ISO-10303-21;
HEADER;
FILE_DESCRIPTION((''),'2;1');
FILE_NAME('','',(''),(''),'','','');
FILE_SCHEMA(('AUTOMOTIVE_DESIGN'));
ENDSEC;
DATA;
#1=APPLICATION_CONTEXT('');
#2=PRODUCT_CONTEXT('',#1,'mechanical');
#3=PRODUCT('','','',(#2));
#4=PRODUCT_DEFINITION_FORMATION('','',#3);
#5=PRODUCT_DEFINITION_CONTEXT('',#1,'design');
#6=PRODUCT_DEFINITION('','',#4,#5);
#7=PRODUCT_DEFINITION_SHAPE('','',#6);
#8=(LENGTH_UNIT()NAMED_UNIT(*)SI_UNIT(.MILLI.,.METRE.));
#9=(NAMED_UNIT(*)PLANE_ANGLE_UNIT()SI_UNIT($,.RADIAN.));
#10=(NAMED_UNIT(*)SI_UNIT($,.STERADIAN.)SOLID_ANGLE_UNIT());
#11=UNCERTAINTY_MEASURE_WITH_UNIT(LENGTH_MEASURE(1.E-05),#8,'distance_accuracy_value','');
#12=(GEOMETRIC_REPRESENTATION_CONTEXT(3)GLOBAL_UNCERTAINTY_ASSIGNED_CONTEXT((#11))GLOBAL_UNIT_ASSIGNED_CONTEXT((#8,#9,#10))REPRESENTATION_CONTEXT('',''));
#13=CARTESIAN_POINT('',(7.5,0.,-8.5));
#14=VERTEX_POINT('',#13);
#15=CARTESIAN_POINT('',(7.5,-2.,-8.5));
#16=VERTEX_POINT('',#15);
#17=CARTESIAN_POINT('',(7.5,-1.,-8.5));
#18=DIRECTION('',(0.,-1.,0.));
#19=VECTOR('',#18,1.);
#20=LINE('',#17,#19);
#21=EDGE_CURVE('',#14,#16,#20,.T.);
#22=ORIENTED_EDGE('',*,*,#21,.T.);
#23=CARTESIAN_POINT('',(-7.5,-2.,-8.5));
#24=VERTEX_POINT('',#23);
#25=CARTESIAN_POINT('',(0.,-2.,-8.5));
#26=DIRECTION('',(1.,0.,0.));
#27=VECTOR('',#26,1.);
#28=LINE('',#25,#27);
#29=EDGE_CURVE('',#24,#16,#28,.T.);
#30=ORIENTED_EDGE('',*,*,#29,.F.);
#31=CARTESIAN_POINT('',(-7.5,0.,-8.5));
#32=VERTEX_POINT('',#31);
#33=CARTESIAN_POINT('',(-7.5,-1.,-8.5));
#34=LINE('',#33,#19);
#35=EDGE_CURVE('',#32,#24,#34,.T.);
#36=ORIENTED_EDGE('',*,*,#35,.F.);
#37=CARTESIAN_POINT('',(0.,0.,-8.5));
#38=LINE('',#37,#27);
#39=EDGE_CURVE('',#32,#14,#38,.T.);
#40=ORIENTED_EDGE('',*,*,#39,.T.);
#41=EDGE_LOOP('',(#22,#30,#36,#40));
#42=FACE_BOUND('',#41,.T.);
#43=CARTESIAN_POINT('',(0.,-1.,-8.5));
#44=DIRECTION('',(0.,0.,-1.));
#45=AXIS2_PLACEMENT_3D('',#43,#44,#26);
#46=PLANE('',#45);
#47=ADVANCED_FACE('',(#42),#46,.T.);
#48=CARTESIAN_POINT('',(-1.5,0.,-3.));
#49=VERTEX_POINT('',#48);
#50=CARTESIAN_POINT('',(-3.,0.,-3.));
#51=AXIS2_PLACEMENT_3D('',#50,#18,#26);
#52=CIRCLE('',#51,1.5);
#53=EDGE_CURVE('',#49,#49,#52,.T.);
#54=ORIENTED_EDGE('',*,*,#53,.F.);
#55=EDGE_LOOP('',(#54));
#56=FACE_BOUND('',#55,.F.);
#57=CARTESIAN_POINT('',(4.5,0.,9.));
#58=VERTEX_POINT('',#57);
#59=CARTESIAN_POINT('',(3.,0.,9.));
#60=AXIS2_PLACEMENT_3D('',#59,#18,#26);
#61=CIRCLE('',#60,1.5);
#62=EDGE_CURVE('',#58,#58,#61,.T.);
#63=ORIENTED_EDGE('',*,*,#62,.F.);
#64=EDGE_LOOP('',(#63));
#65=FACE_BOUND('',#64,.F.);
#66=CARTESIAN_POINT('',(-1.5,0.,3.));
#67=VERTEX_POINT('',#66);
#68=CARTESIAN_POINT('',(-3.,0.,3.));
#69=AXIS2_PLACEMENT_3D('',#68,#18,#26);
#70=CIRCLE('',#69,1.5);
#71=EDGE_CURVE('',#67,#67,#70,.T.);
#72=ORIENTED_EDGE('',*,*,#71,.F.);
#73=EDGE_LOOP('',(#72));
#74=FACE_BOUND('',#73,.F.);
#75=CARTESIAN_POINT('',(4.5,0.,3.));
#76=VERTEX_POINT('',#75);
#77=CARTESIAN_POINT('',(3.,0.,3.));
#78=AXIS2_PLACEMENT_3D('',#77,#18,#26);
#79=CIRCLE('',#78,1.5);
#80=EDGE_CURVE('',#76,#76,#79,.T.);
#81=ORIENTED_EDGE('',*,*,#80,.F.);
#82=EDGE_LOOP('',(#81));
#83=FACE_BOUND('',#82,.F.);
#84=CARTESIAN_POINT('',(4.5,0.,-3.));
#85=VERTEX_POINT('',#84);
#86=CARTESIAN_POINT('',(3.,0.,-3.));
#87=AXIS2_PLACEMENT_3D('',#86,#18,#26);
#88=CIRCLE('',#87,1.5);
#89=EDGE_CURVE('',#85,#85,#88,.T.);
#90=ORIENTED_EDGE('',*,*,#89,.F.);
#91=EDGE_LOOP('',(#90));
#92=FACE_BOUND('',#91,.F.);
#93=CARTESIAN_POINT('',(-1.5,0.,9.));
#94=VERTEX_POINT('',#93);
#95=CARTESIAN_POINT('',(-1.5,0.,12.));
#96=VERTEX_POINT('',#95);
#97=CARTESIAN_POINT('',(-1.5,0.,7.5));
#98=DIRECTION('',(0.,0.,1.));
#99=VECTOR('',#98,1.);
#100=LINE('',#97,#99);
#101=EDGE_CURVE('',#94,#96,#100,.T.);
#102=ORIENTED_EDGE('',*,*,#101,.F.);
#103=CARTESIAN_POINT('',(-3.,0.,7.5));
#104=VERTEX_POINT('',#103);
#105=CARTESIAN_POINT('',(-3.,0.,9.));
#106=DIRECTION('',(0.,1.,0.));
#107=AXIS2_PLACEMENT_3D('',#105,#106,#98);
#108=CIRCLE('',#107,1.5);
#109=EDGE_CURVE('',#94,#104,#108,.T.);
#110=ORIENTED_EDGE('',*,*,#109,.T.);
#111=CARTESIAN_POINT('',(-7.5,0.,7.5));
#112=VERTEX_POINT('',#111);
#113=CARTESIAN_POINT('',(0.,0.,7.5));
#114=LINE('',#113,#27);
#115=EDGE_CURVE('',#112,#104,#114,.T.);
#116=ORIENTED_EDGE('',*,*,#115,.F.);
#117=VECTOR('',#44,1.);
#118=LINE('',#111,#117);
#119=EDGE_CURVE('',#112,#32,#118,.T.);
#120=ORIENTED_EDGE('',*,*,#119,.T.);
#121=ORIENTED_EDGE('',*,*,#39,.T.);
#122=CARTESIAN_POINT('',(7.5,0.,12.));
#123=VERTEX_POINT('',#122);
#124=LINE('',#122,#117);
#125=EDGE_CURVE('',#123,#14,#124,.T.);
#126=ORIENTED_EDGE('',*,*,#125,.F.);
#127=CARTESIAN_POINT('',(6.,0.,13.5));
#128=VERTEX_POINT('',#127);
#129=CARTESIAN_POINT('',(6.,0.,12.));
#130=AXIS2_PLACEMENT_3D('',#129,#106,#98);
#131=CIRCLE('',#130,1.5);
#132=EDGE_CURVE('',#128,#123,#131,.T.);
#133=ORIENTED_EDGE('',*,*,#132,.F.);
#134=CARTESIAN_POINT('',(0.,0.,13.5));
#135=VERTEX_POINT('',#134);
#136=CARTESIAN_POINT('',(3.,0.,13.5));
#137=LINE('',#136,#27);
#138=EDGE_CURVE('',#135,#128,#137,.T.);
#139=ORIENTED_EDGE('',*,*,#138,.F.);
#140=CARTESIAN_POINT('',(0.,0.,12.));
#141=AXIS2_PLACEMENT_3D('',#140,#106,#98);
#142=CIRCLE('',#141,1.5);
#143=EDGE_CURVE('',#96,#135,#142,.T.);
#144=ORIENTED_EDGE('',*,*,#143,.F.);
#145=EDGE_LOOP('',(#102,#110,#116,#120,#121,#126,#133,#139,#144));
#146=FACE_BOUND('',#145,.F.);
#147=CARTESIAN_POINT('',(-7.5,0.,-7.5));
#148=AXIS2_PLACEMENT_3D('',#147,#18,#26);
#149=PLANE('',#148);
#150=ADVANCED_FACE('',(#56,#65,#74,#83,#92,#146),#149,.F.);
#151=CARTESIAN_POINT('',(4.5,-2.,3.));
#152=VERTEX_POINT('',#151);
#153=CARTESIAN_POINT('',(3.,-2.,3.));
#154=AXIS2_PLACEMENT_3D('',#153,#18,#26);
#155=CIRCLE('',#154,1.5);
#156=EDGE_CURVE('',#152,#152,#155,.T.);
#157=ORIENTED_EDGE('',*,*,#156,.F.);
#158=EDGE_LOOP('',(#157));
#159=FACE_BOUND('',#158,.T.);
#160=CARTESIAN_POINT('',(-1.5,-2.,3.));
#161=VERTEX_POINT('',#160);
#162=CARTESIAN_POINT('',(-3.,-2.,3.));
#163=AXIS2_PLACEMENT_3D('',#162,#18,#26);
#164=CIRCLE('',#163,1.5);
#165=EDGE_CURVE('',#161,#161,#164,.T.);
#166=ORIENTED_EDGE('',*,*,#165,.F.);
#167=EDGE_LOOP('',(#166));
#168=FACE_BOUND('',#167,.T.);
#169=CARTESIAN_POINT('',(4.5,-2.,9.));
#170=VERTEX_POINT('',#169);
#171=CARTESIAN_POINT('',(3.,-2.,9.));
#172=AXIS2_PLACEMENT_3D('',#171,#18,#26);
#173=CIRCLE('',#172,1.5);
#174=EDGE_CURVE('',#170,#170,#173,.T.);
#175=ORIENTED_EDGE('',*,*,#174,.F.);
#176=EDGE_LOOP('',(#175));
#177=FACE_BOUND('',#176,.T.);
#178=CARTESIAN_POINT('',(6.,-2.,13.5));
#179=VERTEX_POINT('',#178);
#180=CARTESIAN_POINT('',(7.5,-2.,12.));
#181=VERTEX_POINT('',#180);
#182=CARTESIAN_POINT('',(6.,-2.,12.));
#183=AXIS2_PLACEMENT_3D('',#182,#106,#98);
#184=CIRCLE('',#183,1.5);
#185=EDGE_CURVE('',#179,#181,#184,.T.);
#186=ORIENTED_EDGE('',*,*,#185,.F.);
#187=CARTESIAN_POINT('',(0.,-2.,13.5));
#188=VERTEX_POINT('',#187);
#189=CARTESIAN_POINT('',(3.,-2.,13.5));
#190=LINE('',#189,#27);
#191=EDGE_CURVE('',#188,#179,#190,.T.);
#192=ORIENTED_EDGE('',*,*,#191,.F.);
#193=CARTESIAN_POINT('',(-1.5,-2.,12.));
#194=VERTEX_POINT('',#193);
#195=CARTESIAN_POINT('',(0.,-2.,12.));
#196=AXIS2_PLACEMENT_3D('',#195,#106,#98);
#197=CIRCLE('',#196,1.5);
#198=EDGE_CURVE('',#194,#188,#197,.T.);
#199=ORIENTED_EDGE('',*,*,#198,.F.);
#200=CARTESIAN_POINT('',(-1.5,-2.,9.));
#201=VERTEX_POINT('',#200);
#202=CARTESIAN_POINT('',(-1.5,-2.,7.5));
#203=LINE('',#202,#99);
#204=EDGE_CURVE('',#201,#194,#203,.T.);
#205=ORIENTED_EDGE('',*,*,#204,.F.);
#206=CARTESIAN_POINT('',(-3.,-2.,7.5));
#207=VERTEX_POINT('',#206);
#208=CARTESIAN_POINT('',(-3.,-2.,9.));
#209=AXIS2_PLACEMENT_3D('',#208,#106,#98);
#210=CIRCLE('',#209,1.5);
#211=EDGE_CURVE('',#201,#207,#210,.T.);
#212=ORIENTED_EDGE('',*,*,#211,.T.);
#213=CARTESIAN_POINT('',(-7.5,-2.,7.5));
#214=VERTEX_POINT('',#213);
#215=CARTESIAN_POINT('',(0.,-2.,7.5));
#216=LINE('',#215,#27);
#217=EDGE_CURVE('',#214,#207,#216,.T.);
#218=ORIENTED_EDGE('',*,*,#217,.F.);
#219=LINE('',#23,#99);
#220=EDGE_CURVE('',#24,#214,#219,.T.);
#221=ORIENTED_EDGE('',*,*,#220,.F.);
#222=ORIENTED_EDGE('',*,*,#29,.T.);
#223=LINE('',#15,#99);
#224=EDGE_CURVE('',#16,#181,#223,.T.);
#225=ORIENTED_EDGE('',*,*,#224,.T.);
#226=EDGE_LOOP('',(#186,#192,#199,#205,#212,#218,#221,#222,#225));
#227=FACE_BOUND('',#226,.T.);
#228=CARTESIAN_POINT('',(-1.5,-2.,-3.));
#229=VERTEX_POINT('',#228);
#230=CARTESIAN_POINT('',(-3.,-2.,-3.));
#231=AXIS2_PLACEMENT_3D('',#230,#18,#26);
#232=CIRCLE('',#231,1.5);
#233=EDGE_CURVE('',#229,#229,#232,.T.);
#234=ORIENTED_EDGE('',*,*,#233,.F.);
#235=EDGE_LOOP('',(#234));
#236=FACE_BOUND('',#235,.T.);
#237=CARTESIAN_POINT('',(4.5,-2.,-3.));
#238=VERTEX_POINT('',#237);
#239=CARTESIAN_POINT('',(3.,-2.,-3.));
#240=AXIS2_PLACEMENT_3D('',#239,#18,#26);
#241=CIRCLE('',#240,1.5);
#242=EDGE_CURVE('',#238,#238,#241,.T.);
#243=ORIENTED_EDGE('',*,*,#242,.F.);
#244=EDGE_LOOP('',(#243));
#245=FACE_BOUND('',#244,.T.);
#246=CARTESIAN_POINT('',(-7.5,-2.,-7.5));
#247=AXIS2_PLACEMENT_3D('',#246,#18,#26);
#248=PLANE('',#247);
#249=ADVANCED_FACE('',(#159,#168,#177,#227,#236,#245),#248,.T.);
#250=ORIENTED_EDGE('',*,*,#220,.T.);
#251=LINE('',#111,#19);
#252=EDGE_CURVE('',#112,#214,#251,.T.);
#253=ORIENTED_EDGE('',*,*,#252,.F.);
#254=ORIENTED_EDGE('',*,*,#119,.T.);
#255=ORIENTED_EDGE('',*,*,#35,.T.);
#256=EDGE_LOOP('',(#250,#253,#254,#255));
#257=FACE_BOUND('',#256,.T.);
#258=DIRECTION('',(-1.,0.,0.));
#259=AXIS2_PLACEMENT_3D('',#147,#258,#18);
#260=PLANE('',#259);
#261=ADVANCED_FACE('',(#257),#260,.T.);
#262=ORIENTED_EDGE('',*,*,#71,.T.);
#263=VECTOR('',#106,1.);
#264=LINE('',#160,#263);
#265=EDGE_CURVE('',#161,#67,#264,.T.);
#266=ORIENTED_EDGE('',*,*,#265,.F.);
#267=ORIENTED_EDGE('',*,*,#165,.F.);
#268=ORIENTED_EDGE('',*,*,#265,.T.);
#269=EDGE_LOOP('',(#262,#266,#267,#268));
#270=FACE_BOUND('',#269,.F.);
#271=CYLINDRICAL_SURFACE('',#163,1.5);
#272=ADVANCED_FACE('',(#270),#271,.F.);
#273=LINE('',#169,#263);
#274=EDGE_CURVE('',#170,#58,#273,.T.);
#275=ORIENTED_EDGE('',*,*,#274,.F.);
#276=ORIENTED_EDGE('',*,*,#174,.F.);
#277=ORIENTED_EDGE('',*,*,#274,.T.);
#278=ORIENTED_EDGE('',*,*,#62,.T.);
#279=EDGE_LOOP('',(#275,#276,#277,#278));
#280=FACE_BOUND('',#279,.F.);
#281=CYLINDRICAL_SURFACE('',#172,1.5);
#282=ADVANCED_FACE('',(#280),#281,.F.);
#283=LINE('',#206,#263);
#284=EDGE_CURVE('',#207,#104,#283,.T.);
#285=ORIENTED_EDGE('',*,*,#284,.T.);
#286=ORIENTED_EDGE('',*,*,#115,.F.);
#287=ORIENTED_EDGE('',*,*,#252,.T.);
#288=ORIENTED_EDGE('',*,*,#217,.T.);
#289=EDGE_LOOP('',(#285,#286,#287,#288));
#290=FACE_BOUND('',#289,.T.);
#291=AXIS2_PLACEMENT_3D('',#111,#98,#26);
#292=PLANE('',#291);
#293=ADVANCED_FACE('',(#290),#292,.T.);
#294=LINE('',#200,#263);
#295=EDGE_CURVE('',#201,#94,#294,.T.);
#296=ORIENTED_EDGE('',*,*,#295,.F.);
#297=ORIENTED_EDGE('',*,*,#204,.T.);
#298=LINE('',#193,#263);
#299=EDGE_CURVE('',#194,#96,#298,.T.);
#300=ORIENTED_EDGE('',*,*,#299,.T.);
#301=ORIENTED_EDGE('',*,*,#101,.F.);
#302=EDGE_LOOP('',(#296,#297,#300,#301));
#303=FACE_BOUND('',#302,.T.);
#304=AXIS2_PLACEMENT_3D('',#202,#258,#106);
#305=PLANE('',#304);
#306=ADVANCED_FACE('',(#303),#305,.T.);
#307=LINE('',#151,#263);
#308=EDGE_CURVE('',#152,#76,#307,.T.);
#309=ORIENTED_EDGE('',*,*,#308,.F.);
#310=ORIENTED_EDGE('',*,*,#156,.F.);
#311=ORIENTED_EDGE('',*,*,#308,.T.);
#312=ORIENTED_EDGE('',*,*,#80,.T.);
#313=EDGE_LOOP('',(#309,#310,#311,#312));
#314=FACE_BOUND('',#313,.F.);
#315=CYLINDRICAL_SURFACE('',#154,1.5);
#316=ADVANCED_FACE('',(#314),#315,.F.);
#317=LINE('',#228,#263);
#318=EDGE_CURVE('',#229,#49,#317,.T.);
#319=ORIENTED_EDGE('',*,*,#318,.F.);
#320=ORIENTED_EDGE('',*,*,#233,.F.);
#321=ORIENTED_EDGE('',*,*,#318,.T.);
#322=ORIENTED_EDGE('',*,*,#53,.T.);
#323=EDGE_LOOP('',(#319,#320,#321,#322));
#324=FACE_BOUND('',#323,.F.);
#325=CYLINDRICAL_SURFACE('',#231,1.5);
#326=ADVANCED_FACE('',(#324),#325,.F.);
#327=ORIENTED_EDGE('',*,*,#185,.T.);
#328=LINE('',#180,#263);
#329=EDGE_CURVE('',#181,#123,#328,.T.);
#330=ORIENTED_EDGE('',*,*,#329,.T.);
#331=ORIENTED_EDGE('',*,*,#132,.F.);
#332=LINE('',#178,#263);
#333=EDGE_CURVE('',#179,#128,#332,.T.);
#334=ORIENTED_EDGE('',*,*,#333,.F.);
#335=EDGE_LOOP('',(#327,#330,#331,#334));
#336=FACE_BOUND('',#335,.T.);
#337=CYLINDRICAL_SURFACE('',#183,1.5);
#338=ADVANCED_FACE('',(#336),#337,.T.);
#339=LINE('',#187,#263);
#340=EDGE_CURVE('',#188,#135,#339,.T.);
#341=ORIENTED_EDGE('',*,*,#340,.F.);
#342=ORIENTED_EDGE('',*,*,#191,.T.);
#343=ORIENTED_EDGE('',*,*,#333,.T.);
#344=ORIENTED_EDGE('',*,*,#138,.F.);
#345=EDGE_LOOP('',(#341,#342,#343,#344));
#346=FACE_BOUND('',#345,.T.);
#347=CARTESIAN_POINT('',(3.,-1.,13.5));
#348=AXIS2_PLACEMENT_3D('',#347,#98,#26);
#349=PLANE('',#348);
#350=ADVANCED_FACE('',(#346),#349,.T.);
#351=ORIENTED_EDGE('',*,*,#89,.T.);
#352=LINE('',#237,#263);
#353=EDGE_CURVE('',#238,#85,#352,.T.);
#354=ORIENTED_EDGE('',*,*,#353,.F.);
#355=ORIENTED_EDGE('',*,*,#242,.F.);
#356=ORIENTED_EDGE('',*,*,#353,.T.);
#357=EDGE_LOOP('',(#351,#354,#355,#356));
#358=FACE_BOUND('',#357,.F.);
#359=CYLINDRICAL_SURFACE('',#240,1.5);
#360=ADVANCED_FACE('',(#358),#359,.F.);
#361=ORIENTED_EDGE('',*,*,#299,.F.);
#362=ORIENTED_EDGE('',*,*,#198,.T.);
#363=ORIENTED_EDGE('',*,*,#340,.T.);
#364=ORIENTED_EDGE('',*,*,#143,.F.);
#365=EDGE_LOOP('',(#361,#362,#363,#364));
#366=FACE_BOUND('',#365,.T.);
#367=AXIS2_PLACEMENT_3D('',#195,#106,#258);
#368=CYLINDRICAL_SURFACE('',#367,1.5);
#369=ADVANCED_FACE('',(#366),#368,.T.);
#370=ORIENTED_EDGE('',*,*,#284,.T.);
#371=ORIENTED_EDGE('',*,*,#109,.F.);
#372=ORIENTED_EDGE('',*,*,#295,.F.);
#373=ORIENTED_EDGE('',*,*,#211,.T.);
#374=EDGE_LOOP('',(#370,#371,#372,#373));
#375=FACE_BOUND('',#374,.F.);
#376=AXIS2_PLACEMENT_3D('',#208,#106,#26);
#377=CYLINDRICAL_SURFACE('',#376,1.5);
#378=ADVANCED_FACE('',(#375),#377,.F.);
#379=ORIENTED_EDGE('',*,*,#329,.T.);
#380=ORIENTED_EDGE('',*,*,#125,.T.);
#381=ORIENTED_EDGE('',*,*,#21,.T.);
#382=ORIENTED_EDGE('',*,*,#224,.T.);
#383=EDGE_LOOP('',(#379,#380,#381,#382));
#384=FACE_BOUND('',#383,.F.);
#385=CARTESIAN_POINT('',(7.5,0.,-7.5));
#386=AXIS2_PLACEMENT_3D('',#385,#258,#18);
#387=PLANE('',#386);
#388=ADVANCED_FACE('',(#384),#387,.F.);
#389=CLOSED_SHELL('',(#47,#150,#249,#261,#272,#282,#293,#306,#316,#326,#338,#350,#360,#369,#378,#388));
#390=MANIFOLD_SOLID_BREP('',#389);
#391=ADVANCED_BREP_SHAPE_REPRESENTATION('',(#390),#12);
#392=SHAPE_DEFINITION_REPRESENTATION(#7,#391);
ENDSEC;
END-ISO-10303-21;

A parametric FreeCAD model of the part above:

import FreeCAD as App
import Part
import Sketcher

V = App.Vector


def edges_at(feature, points):
    """Names of the edges that pass closest to the given points."""
    edges = feature.Shape.Edges
    near = lambda p: min(range(len(edges)), key=lambda i: edges[i].distToShape(Part.Vertex(*p))[0])
    return sorted({f"Edge{near(p) + 1}" for p in points})


def add_polygon(sketch, points):
    """Adds a closed chain of lines whose ends are joined by coincident constraints."""
    first, n = sketch.GeometryCount, len(points)
    for a, b in zip(points, points[1:] + points[:1]):
        sketch.addGeometry(Part.LineSegment(App.Vector(*a, 0), App.Vector(*b, 0)), False)
    for i in range(n):
        sketch.addConstraint(Sketcher.Constraint("Coincident", first + i, 2, first + (i + 1) % n, 1))

doc = App.newDocument("Part")
body = doc.addObject("PartDesign::Body", "Body")

sketch1 = doc.addObject("Sketcher::SketchObject", "Sketch")
body.addObject(sketch1)
sketch1.AttachmentSupport = (doc.XZ_Plane, [""])
sketch1.MapMode = "FlatFace"
add_polygon(sketch1, [(-8, 8), (-8, -8), (8, -8), (8, 8)])
sketch1.addConstraint([
    Sketcher.Constraint("Vertical", 0),
    Sketcher.Constraint("Horizontal", 1),
    Sketcher.Constraint("Vertical", 2),
    Sketcher.Constraint("Horizontal", 3),
    Sketcher.Constraint("Symmetric", 0, 2, 2, 2, -1, 1),
    Sketcher.Constraint("Equal", 3, 0),
    Sketcher.Constraint("DistanceX", 1, 1, 1, 2, 15.0),
])
pad1 = doc.addObject("PartDesign::Pad", "Pad")
body.addObject(pad1)
pad1.Profile = sketch1
pad1.Length = 2

sketch2 = doc.addObject("Sketcher::SketchObject", "Sketch001")
body.addObject(sketch2)
sketch2.AttachmentSupport = (doc.XZ_Plane, [""])
sketch2.MapMode = "FlatFace"
sketch2.AttachmentOffset = App.Placement(V(0, 0, 2), App.Rotation())
sketch2.addGeometry([
    Part.Circle(V(3, 3, 0), V(0, 0, 1), 1.5),
    Part.Circle(V(-3, 3, 0), V(0, 0, 1), 1.5),
    Part.Circle(V(-3, -3, 0), V(0, 0, 1), 1.5),
    Part.Circle(V(3, -3, 0), V(0, 0, 1), 1.5),
], False)
sketch2.addConstraint([
    Sketcher.Constraint("Equal", 0, 1),
    Sketcher.Constraint("Equal", 1, 2),
    Sketcher.Constraint("Equal", 2, 3),
    Sketcher.Constraint("Symmetric", 0, 3, 2, 3, -1, 1),
    Sketcher.Constraint("Symmetric", 1, 3, 3, 3, -1, 1),
    Sketcher.Constraint("Symmetric", 0, 3, 1, 3, -2),
    Sketcher.Constraint("Diameter", 0, 3.0),
    Sketcher.Constraint("DistanceX", -1, 1, 0, 3, 3.0),
    Sketcher.Constraint("DistanceY", -1, 1, 0, 3, 3.0),
])
pocket1 = doc.addObject("PartDesign::Pocket", "Pocket")
body.addObject(pocket1)
pocket1.Profile = sketch2
pocket1.Length = 25

sketch3 = doc.addObject("Sketcher::SketchObject", "Sketch002")
body.addObject(sketch3)
sketch3.AttachmentSupport = (doc.XY_Plane, [""])
sketch3.MapMode = "FlatFace"
sketch3.AttachmentOffset = App.Placement(V(0, 0, 7.5), App.Rotation())
add_polygon(sketch3, [(-1.5, 0), (-1.5, -2), (7.5, -2), (7.5, 0)])
sketch3.addConstraint([
    Sketcher.Constraint("Vertical", 0),
    Sketcher.Constraint("Horizontal", 1),
    Sketcher.Constraint("Vertical", 2),
    Sketcher.Constraint("Horizontal", 3),
    Sketcher.Constraint("PointOnObject", 2, 2, -1),
    Sketcher.Constraint("DistanceX", 1, 1, 1, 2, 9.0),
    Sketcher.Constraint("DistanceY", 0, 2, 0, 1, 2.0),
    Sketcher.Constraint("DistanceX", 0, 2, -1, 1, 1.5),
])
pad2 = doc.addObject("PartDesign::Pad", "Pad001")
body.addObject(pad2)
pad2.Profile = sketch3
pad2.Length = 6

sketch4 = doc.addObject("Sketcher::SketchObject", "Sketch003")
body.addObject(sketch4)
sketch4.AttachmentSupport = (doc.XZ_Plane, [""])
sketch4.MapMode = "FlatFace"
sketch4.AttachmentOffset = App.Placement(V(0, 0, 2), App.Rotation())
sketch4.addGeometry(Part.Circle(V(3, 9, 0), V(0, 0, 1), 1.5), False)
sketch4.addConstraint([
    Sketcher.Constraint("Diameter", 0, 3.0),
    Sketcher.Constraint("DistanceX", -1, 1, 0, 3, 3.0),
    Sketcher.Constraint("DistanceY", -1, 1, 0, 3, 9.0),
])
pocket2 = doc.addObject("PartDesign::Pocket", "Pocket001")
body.addObject(pocket2)
pocket2.Profile = sketch4
pocket2.Length = 25
doc.recompute()

fillet = doc.addObject("PartDesign::Fillet", "Fillet")
body.addObject(fillet)
fillet.Base = (pocket2, edges_at(pocket2, [(7.5, -1, 13.5), (-1.5, -1, 13.5), (-1.5, -1, 7.5)]))
fillet.Radius = 1.5

sketch5 = doc.addObject("Sketcher::SketchObject", "Sketch004")
body.addObject(sketch5)
sketch5.AttachmentSupport = (doc.XY_Plane, [""])
sketch5.MapMode = "FlatFace"
sketch5.AttachmentOffset = App.Placement(V(0, 0, -7.5), App.Rotation())
add_polygon(sketch5, [(-7.5, -2), (-7.5, 0), (7.5, 0), (7.5, -2)])
sketch5.addConstraint([
    Sketcher.Constraint("Vertical", 0),
    Sketcher.Constraint("Horizontal", 1),
    Sketcher.Constraint("Vertical", 2),
    Sketcher.Constraint("Horizontal", 3),
    Sketcher.Constraint("Symmetric", 0, 2, 1, 2, -1, 1),
    Sketcher.Constraint("DistanceX", 1, 1, 1, 2, 15.0),
    Sketcher.Constraint("DistanceY", 0, 1, 0, 2, 2.0),
])
pad3 = doc.addObject("PartDesign::Pad", "Pad002")
body.addObject(pad3)
pad3.Profile = sketch5
pad3.Length = 1
pad3.Reversed = True

doc.recompute()
